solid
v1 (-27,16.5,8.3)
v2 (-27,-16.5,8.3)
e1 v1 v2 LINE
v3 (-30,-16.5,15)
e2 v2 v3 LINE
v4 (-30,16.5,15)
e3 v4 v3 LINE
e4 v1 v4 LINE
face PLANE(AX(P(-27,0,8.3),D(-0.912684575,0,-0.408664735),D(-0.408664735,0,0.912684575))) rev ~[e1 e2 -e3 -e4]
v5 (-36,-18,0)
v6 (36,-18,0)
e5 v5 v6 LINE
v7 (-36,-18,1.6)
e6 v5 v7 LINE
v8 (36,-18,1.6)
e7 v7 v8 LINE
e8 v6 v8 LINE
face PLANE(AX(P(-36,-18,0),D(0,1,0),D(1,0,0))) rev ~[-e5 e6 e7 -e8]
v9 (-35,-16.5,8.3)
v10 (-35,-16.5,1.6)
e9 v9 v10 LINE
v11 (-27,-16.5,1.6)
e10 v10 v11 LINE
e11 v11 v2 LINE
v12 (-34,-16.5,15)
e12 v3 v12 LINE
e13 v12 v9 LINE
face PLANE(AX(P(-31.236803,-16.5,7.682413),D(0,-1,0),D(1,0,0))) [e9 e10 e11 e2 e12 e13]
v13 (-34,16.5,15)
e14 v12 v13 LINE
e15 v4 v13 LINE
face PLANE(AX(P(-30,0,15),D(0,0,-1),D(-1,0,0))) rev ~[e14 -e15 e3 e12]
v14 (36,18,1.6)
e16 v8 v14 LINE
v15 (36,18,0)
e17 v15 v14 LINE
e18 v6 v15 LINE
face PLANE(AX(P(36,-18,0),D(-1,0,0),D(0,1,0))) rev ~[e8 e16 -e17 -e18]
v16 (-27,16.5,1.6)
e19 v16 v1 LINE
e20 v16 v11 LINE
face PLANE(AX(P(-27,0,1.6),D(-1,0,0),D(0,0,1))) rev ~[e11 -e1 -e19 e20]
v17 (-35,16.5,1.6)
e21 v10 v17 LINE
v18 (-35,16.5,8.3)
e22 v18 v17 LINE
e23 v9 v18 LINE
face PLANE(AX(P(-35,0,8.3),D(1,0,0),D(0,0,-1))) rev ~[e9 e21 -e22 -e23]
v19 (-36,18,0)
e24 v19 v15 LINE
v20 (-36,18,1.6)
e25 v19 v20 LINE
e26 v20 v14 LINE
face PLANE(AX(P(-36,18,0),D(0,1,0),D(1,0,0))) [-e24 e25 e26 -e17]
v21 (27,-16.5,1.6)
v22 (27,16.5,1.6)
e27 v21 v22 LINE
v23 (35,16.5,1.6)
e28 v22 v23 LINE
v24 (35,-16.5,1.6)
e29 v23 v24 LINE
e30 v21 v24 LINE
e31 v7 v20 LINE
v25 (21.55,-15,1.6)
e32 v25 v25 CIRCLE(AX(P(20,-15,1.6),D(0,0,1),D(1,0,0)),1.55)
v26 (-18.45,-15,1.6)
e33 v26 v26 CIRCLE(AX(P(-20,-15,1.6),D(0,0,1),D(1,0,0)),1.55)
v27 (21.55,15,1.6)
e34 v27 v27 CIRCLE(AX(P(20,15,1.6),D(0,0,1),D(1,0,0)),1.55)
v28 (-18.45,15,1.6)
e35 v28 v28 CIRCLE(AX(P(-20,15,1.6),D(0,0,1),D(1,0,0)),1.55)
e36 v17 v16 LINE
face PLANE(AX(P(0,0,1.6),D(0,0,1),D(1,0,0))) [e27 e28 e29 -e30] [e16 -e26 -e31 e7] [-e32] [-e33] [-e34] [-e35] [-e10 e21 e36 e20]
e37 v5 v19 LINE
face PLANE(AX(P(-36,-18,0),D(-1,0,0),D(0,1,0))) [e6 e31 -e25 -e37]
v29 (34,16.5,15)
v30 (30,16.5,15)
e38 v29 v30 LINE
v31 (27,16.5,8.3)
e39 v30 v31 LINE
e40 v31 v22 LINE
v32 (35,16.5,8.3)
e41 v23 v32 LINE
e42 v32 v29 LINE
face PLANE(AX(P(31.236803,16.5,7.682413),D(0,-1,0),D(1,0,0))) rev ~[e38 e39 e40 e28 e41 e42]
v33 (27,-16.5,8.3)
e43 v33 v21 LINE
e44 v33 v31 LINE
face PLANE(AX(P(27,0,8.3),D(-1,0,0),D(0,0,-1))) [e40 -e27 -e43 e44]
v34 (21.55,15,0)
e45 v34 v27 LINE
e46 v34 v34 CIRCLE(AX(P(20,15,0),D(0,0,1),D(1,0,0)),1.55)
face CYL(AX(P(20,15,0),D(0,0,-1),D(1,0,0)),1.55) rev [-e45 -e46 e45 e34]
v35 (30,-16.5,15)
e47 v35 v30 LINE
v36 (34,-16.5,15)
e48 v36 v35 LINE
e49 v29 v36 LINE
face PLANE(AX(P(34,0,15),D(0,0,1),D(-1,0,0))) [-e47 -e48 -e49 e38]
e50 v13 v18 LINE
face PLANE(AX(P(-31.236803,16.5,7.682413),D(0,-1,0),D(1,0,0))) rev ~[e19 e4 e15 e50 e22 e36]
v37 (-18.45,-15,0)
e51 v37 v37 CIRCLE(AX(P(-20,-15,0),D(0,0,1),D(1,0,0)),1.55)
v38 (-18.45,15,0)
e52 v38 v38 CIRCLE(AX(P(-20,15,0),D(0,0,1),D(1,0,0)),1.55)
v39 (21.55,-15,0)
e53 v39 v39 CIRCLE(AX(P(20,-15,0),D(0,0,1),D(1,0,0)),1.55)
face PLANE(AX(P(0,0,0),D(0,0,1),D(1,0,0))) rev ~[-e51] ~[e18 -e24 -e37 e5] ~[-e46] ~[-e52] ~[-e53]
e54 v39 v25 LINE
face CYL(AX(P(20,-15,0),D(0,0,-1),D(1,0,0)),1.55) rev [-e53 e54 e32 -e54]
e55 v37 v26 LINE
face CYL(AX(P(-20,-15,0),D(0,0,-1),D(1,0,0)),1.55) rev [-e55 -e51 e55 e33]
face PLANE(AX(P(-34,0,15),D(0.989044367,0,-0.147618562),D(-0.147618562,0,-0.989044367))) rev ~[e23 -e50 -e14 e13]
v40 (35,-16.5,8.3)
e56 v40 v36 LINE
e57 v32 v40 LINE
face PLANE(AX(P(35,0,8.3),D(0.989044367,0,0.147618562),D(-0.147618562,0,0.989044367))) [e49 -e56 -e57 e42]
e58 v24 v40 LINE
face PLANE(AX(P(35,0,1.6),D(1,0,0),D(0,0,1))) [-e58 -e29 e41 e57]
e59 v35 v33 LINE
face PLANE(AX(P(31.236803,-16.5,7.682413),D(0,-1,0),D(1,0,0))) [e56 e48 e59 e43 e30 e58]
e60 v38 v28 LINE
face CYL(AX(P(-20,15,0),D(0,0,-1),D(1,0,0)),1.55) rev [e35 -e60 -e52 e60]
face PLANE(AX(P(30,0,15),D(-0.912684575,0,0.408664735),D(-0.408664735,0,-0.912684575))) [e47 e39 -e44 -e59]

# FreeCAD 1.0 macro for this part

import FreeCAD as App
import Part
import Sketcher

V = App.Vector


def add_polygon(sketch, points):
    """Adds a closed chain of lines whose ends are joined by coincident constraints."""
    first, n = sketch.GeometryCount, len(points)
    for a, b in zip(points, points[1:] + points[:1]):
        sketch.addGeometry(Part.LineSegment(App.Vector(*a, 0), App.Vector(*b, 0)), False)
    for i in range(n):
        sketch.addConstraint(Sketcher.Constraint("Coincident", first + i, 2, first + (i + 1) % n, 1))

doc = App.newDocument("Part")
params = doc.addObject("Spreadsheet::Sheet", "Params")
for row, (alias, value) in enumerate([
    ("sketch1_diameter", "3.1 mm"),
    ("sketch1_width", "72 mm"),
    ("sketch1_height", "36 mm"),
    ("pad1_length", "1.6 mm"),
    ("sketch2_width", "8 mm"),
    ("sketch2_width2", "4 mm"),
    ("sketch2_height", "6.7 mm"),
    ("pad2_length", "33 mm"),
], start=1):
    params.set(f"A{row}", alias)
    params.set(f"B{row}", "=" + value)
    params.setAlias(f"B{row}", alias)

body = doc.addObject("PartDesign::Body", "Body")

sketch1 = body.newObject("Sketcher::SketchObject", "Sketch")
sketch1.AttachmentSupport = (doc.getObject("XY_Plane"), [""])
sketch1.MapMode = "FlatFace"
add_polygon(sketch1, [(-36, 18), (-36, -18), (36, -18), (36, 18)])
sketch1.addGeometry(Part.Circle(V(-20, -15, 0), V(0, 0, 1), 1.6), False)
sketch1.addGeometry(Part.Circle(V(20, -15, 0), V(0, 0, 1), 1.6), False)
sketch1.addGeometry(Part.Circle(V(-20, 15, 0), V(0, 0, 1), 1.6), False)
sketch1.addGeometry(Part.Circle(V(20, 15, 0), V(0, 0, 1), 1.6), False)
sketch1.addConstraint(Sketcher.Constraint("Vertical", 0))
sketch1.addConstraint(Sketcher.Constraint("Horizontal", 1))
sketch1.addConstraint(Sketcher.Constraint("Vertical", 2))
sketch1.addConstraint(Sketcher.Constraint("Horizontal", 3))
sketch1.addConstraint(Sketcher.Constraint("Equal", 4, 5))
sketch1.addConstraint(Sketcher.Constraint("Equal", 5, 6))
sketch1.addConstraint(Sketcher.Constraint("Equal", 6, 7))
sketch1.addConstraint(Sketcher.Constraint("Symmetric", 5, 3, 6, 3, -1, 1))
sketch1.addConstraint(Sketcher.Constraint("Symmetric", 4, 3, 7, 3, -1, 1))
sketch1.addConstraint(Sketcher.Constraint("Symmetric", 0, 2, 2, 2, -1, 1))
sketch1.addConstraint(Sketcher.Constraint("Symmetric", 4, 3, 5, 3, -2))
sketch1.addConstraint(Sketcher.Constraint("Diameter", 4, 3.1))
sketch1.addConstraint(Sketcher.Constraint("DistanceX", 1, 1, 1, 2, 72.0))
sketch1.addConstraint(Sketcher.Constraint("DistanceY", 0, 2, 0, 1, 36.0))
sketch1.addConstraint(Sketcher.Constraint("DistanceX", 4, 3, -1, 1, 20.0))
sketch1.addConstraint(Sketcher.Constraint("DistanceY", 4, 3, -1, 1, 15.0))
sketch1.setExpression("Constraints[15]", "Params.sketch1_diameter")
sketch1.setExpression("Constraints[16]", "Params.sketch1_width")
sketch1.setExpression("Constraints[17]", "Params.sketch1_height")
pad1 = body.newObject("PartDesign::Pad", "Pad")
pad1.Profile = sketch1
pad1.setExpression("Length", "Params.pad1_length")

sketch2 = body.newObject("Sketcher::SketchObject", "Sketch001")
sketch2.AttachmentSupport = (doc.getObject("XZ_Plane"), [""])
sketch2.MapMode = "FlatFace"
add_polygon(sketch2, [(-35, 1.6), (-27, 1.6), (-27, 8.3), (-30, 15), (-34, 15), (-35, 8.3)])
add_polygon(sketch2, [(27, 1.6), (35, 1.6), (35, 8.3), (34, 15), (30, 15), (27, 8.3)])
sketch2.addConstraint(Sketcher.Constraint("Horizontal", 0))
sketch2.addConstraint(Sketcher.Constraint("Vertical", 1))
sketch2.addConstraint(Sketcher.Constraint("Horizontal", 3))
sketch2.addConstraint(Sketcher.Constraint("Vertical", 5))
sketch2.addConstraint(Sketcher.Constraint("Horizontal", 6))
sketch2.addConstraint(Sketcher.Constraint("Vertical", 7))
sketch2.addConstraint(Sketcher.Constraint("Horizontal", 9))
sketch2.addConstraint(Sketcher.Constraint("Vertical", 11))
sketch2.addConstraint(Sketcher.Constraint("Symmetric", 5, 2, 6, 2, -2))
sketch2.addConstraint(Sketcher.Constraint("Symmetric", 3, 2, 8, 2, -2))
sketch2.addConstraint(Sketcher.Constraint("Symmetric", 1, 2, 10, 2, -2))
sketch2.addConstraint(Sketcher.Constraint("Horizontal", 1, 2, 4, 2))
sketch2.addConstraint(Sketcher.Constraint("Horizontal", 4, 2, 7, 2))
sketch2.addConstraint(Sketcher.Constraint("Equal", 3, 9))
sketch2.addConstraint(Sketcher.Constraint("DistanceX", 0, 1, 0, 2, 8.0))
sketch2.addConstraint(Sketcher.Constraint("DistanceX", 3, 2, 3, 1, 4.0))
sketch2.addConstraint(Sketcher.Constraint("DistanceY", 1, 1, 1, 2, 6.7))
sketch2.addConstraint(Sketcher.Constraint("DistanceX", 0, 2, -1, 1, 27.0))
sketch2.addConstraint(Sketcher.Constraint("DistanceX", 2, 2, -1, 1, 30.0))
sketch2.addConstraint(Sketcher.Constraint("DistanceY", -1, 1, 2, 2, 15.0))
sketch2.addConstraint(Sketcher.Constraint("DistanceY", -1, 1, 0, 2, 1.6))
sketch2.setExpression("Constraints[26]", "Params.sketch2_width")
sketch2.setExpression("Constraints[27]", "Params.sketch2_width2")
sketch2.setExpression("Constraints[28]", "Params.sketch2_height")
pad2 = body.newObject("PartDesign::Pad", "Pad001")
pad2.Profile = sketch2
pad2.setExpression("Length", "Params.pad2_length")
pad2.Midplane = True

doc.recompute()
